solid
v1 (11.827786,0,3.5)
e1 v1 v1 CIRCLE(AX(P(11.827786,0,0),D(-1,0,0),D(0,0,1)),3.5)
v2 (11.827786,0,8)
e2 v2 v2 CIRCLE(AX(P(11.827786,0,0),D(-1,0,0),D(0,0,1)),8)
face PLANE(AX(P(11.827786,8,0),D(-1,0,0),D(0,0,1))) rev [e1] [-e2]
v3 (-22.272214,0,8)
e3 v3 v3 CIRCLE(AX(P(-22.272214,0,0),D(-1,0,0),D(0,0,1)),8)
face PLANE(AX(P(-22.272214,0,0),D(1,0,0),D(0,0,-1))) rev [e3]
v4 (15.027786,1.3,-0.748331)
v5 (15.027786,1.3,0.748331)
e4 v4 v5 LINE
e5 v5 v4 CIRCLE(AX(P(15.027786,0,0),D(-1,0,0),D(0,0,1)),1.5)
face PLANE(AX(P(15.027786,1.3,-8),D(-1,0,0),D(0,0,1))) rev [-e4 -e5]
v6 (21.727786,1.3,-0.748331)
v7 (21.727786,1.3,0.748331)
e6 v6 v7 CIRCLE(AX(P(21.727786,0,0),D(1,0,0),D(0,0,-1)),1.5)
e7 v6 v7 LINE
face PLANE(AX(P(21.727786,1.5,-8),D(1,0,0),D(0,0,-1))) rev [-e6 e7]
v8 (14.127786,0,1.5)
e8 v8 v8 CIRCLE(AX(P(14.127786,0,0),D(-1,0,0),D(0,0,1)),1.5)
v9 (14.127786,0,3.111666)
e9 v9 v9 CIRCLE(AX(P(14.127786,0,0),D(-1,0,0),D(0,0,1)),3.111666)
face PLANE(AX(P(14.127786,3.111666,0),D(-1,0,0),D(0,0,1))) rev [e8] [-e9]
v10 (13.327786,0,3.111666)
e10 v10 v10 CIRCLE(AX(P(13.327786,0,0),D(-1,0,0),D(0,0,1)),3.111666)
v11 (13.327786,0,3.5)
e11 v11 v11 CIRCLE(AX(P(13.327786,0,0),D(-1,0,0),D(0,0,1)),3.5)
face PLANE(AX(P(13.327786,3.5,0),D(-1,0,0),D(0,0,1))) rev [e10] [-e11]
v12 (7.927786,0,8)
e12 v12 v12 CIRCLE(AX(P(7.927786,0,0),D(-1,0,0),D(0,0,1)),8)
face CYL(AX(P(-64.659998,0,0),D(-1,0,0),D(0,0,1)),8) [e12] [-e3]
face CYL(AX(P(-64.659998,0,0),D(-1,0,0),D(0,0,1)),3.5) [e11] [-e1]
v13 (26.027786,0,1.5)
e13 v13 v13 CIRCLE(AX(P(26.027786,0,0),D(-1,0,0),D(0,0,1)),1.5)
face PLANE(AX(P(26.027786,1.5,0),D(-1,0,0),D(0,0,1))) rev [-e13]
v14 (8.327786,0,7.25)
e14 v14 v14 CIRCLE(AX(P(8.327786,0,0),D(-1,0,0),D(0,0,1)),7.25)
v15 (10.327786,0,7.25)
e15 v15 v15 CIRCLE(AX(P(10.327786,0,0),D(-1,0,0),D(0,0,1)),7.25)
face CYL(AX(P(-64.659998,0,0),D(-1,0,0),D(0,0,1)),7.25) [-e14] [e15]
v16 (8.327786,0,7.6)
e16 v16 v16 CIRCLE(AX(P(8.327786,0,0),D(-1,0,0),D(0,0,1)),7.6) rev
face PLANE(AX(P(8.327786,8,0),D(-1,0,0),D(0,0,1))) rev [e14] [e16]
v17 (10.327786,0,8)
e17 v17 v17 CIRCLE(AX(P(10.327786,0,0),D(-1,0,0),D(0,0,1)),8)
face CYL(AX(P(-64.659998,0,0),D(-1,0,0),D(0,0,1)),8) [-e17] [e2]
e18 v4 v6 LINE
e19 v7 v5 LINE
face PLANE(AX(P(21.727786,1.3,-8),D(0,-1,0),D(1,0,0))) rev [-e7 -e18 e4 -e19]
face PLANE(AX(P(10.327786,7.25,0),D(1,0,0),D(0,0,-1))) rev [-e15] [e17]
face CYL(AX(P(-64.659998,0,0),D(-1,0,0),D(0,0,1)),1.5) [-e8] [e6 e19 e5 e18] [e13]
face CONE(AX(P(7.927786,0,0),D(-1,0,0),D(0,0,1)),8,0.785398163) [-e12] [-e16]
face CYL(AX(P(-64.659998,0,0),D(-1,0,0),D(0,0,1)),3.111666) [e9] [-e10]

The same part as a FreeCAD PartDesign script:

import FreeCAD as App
import Part
import Sketcher
from FreeCAD import Vector
Q = App.Units.Quantity


def edges_at(feature, points):
    """Names of the edges that pass closest to the given points."""
    edges = feature.Shape.Edges
    near = lambda p: min(range(len(edges)), key=lambda i: edges[i].distToShape(Part.Vertex(*p))[0])
    return sorted({f"Edge{near(p) + 1}" for p in points})


def add_polygon(sketch, points):
    """Adds a closed chain of lines whose ends are joined by coincident constraints."""
    first, n = sketch.GeometryCount, len(points)
    for a, b in zip(points, points[1:] + points[:1]):
        sketch.addGeometry(Part.LineSegment(App.Vector(*a, 0), App.Vector(*b, 0)), False)
    for i in range(n):
        sketch.addConstraint(Sketcher.Constraint("Coincident", first + i, 2, first + (i + 1) % n, 1))

doc = App.newDocument("Part")
params = doc.addObject("Spreadsheet::Sheet", "Params")
for row, (alias, value) in enumerate([
    ("sketch1_width", "2 mm"),
    ("sketch1_height", "8 mm"),
    ("sketch1_width2", "48.3 mm"),
    ("sketch1_width3", "11.9 mm"),
    ("sketch1_width4", "0.8 mm"),
    ("revolution_angle", "360 deg"),
    ("chamfer_size", "0.4 mm"),
    ("sketch2_width", "6.7 mm"),
    ("sketch2_height", "0.2 mm"),
], start=1):
    params.set(f"A{row}", alias)
    params.set(f"B{row}", "=" + value)
    params.setAlias(f"B{row}", alias)

body = doc.addObject("PartDesign::Body", "Body")

# Sketch on XY plane
sketch1 = doc.addObject("Sketcher::SketchObject", "Sketch")
body.addObject(sketch1)
sketch1.AttachmentSupport = (doc.XY_Plane, [""])
sketch1.MapMode = "FlatFace"
add_polygon(sketch1, [(-22.272214, 8), (-22.272214, 0), (26.027786, 0), (26.027786, 1.5), (14.127786, 1.5), (14.127786, 3.111666), (13.327786, 3.111666), (13.327786, 3.5), (11.827786, 3.5), (11.827786, 8), (10.327786, 8), (10.327786, 7.25), (8.327786, 7.25), (8.327786, 8)])  # lines 0-13
sketch1.addConstraint([
    Sketcher.Constraint("Vertical", 0),
    Sketcher.Constraint("Horizontal", 1),
    Sketcher.Constraint("Vertical", 2),
    Sketcher.Constraint("Horizontal", 3),
    Sketcher.Constraint("Vertical", 4),
    Sketcher.Constraint("Horizontal", 5),
    Sketcher.Constraint("Vertical", 6),
    Sketcher.Constraint("Horizontal", 7),
    Sketcher.Constraint("Vertical", 8),
    Sketcher.Constraint("Horizontal", 9),
    Sketcher.Constraint("Vertical", 10),
    Sketcher.Constraint("Horizontal", 11),
    Sketcher.Constraint("Vertical", 12),
    Sketcher.Constraint("Horizontal", 13),
    Sketcher.Constraint("PointOnObject", 0, 2, -1),
    Sketcher.Constraint("Horizontal", 9, 2, 12, 2),
    Sketcher.Constraint("Equal", 7, 9),
    Sketcher.Constraint("Equal", 9, 2),
    Sketcher.Constraint("DistanceX", 11, 2, 11, 1, Q("2 mm")),
    Sketcher.Constraint("DistanceY", 0, 2, 0, 1, Q("8 mm")),
    Sketcher.Constraint("DistanceX", 1, 1, 1, 2, Q("48.3 mm")),
    Sketcher.Constraint("DistanceX", 3, 2, 3, 1, Q("11.9 mm")),
    Sketcher.Constraint("DistanceX", 5, 2, 5, 1, Q("0.8 mm")),
    Sketcher.Constraint("DistanceX", 7, 2, 7, 1, Q("1.5 mm")),
    Sketcher.Constraint("DistanceY", 8, 1, 8, 2, Q("4.5 mm")),
    Sketcher.Constraint("DistanceY", 10, 2, 10, 1, Q("0.75 mm")),
    Sketcher.Constraint("DistanceY", 4, 1, 4, 2, Q("1.611666 mm")),
    Sketcher.Constraint("DistanceX", 0, 2, -1, 1, Q("22.272214 mm")),
])
sketch1.setExpression("Constraints[32]", "Params.sketch1_width")
sketch1.setExpression("Constraints[33]", "Params.sketch1_height")
sketch1.setExpression("Constraints[34]", "Params.sketch1_width2")
sketch1.setExpression("Constraints[35]", "Params.sketch1_width3")
sketch1.setExpression("Constraints[36]", "Params.sketch1_width4")
revolution = doc.addObject("PartDesign::Revolution", "Revolution")
body.addObject(revolution)
revolution.Profile = sketch1
revolution.ReferenceAxis = (sketch1, ["H_Axis"])
revolution.setExpression("Angle", "Params.revolution_angle")
doc.recompute()

chamfer = doc.addObject("PartDesign::Chamfer", "Chamfer")
body.addObject(chamfer)
chamfer.Base = (revolution, edges_at(revolution, [(8.328, 0, -8)]))
chamfer.setExpression("Size", "Params.chamfer_size")

# Sketch on XY plane
sketch2 = doc.addObject("Sketcher::SketchObject", "Sketch001")
body.addObject(sketch2)
sketch2.AttachmentSupport = (doc.XY_Plane, [""])
sketch2.MapMode = "FlatFace"
add_polygon(sketch2, [(15.027786, 1.5), (15.027786, 1.3), (21.727786, 1.3), (21.727786, 1.5)])  # lines 0-3
sketch2.addConstraint([
    Sketcher.Constraint("Vertical", 0),
    Sketcher.Constraint("Horizontal", 1),
    Sketcher.Constraint("Vertical", 2),
    Sketcher.Constraint("Horizontal", 3),
    Sketcher.Constraint("DistanceX", 1, 1, 1, 2, Q("6.7 mm")),
    Sketcher.Constraint("DistanceY", 0, 2, 0, 1, Q("0.2 mm")),
    Sketcher.Constraint("DistanceY", -1, 1, 0, 2, Q("1.3 mm")),
    Sketcher.Constraint("DistanceX", -1, 1, 0, 2, Q("15.027786 mm")),
])
sketch2.setExpression("Constraints[8]", "Params.sketch2_width")
sketch2.setExpression("Constraints[9]", "Params.sketch2_height")
pocket1 = doc.addObject("PartDesign::Pocket", "Pocket")
body.addObject(pocket1)
pocket1.Profile = sketch2
pocket1.Type = "ThroughAll"
pocket1.Midplane = True

doc.recompute()
